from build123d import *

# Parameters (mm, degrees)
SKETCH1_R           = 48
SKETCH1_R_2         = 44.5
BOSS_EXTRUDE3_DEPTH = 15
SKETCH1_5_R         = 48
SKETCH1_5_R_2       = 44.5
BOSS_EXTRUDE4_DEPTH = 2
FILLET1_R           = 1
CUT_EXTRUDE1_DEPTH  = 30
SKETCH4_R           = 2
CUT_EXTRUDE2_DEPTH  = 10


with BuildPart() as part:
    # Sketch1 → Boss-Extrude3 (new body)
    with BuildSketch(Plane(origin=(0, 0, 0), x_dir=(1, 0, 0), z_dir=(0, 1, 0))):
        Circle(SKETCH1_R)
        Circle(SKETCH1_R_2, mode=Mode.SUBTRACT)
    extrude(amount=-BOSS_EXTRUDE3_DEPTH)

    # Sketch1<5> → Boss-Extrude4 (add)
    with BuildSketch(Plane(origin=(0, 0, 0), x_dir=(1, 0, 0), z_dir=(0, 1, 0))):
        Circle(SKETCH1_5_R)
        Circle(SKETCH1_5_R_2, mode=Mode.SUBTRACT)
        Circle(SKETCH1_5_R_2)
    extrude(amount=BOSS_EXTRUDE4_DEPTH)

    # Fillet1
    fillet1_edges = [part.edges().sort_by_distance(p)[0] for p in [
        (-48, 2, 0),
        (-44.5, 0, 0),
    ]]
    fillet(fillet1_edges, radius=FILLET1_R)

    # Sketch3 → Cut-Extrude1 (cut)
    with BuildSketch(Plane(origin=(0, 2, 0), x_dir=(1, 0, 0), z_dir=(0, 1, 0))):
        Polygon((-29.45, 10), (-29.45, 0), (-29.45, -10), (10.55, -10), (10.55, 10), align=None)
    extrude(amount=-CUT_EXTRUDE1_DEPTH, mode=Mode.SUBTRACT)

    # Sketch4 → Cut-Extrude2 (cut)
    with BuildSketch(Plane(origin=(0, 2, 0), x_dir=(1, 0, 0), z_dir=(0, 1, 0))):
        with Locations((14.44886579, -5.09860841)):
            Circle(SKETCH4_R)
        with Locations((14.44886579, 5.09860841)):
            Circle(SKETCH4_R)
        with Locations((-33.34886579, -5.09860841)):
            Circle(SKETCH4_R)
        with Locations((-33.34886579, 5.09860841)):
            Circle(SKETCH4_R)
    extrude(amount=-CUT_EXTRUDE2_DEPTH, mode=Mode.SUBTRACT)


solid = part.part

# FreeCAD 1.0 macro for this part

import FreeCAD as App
import Part
import Sketcher

V = App.Vector


def edges_at(feature, points):
    """Names of the edges that pass closest to the given points."""
    edges = feature.Shape.Edges
    near = lambda p: min(range(len(edges)), key=lambda i: edges[i].distToShape(Part.Vertex(*p))[0])
    return sorted({f"Edge{near(p) + 1}" for p in points})

doc = App.newDocument("Part")
params = doc.addObject("Spreadsheet::Sheet", "Params")
for row, (alias, value) in enumerate([
    ("sketch1_diameter", "96 mm"),
    ("sketch1_diameter2", "89 mm"),
    ("pad1_length", "15 mm"),
    ("sketch2_diameter", "96 mm"),
    ("pad2_length", "2 mm"),
    ("fillet_radius", "1 mm"),
    ("sketch3_width", "40 mm"),
    ("sketch3_height", "20 mm"),
    ("pocket1_length", "30 mm"),
    ("sketch4_diameter", "4 mm"),
    ("pocket2_length", "10 mm"),
], start=1):
    params.set(f"A{row}", alias)
    params.set(f"B{row}", "=" + value)
    params.setAlias(f"B{row}", alias)

body = doc.addObject("PartDesign::Body", "Body")

# Sketch on XZ plane
sketch1 = body.newObject("Sketcher::SketchObject", "Sketch")
sketch1.AttachmentSupport = (doc.getObject("XZ_Plane"), [""])
sketch1.MapMode = "FlatFace"
sketch1.addGeometry([
    Part.Circle(V(0, 0, 0), V(0, 0, 1), 48),
    Part.Circle(V(0, 0, 0), V(0, 0, 1), 44.5),
], False)
sketch1.addConstraint([
    Sketcher.Constraint("Coincident", 0, 3, -1, 1),
    Sketcher.Constraint("Coincident", 1, 3, -1, 1),
    Sketcher.Constraint("Diameter", 0, 96.0),
    Sketcher.Constraint("Diameter", 1, 89.0),
])
sketch1.setExpression("Constraints[2]", "Params.sketch1_diameter")
sketch1.setExpression("Constraints[3]", "Params.sketch1_diameter2")
pad1 = body.newObject("PartDesign::Pad", "Pad")
pad1.Profile = sketch1
pad1.setExpression("Length", "Params.pad1_length")

# Sketch on XZ plane
sketch2 = body.newObject("Sketcher::SketchObject", "Sketch001")
sketch2.AttachmentSupport = (doc.getObject("XZ_Plane"), [""])
sketch2.MapMode = "FlatFace"
sketch2.addGeometry(Part.Circle(V(0, 0, 0), V(0, 0, 1), 48), False)
sketch2.addConstraint([
    Sketcher.Constraint("Coincident", 0, 3, -1, 1),
    Sketcher.Constraint("Diameter", 0, 96.0),
])
sketch2.setExpression("Constraints[1]", "Params.sketch2_diameter")
pad2 = body.newObject("PartDesign::Pad", "Pad001")
pad2.Profile = sketch2
pad2.setExpression("Length", "Params.pad2_length")
pad2.Reversed = True
doc.recompute()

fillet = body.newObject("PartDesign::Fillet", "Fillet")
fillet.Base = (pad2, edges_at(pad2, [(-48, 2, 0), (-44.5, 0, 0)]))
fillet.setExpression("Radius", "Params.fillet_radius")

# Sketch on XZ plane
sketch3 = body.newObject("Sketcher::SketchObject", "Sketch002")
sketch3.AttachmentSupport = (doc.getObject("XZ_Plane"), [""])
sketch3.MapMode = "FlatFace"
sketch3.AttachmentOffset = App.Placement(V(0, 0, -2), App.Rotation())
sketch3.addGeometry([
    Part.LineSegment(V(-29.45, -10, 0), V(-29.45, 10, 0)),
    Part.LineSegment(V(-29.45, 10, 0), V(10.55, 10, 0)),
    Part.LineSegment(V(10.55, 10, 0), V(10.55, -10, 0)),
    Part.LineSegment(V(10.55, -10, 0), V(-29.45, -10, 0)),
], False)
sketch3.addConstraint([
    Sketcher.Constraint("Coincident", 0, 2, 1, 1),
    Sketcher.Constraint("Coincident", 1, 2, 2, 1),
    Sketcher.Constraint("Coincident", 2, 2, 3, 1),
    Sketcher.Constraint("Coincident", 3, 2, 0, 1),
    Sketcher.Constraint("Vertical", 0),
    Sketcher.Constraint("Horizontal", 1),
    Sketcher.Constraint("Vertical", 2),
    Sketcher.Constraint("Horizontal", 3),
    Sketcher.Constraint("DistanceX", 1, 1, 1, 2, 40.0),
    Sketcher.Constraint("DistanceY", 0, 1, 0, 2, 20.0),
    Sketcher.Constraint("DistanceY", -1, 1, 0, 2, 10.0),
    Sketcher.Constraint("DistanceX", 0, 2, -1, 1, 29.45),
])
sketch3.setExpression("Constraints[8]", "Params.sketch3_width")
sketch3.setExpression("Constraints[9]", "Params.sketch3_height")
pocket1 = body.newObject("PartDesign::Pocket", "Pocket")
pocket1.Profile = sketch3
pocket1.setExpression("Length", "Params.pocket1_length")
pocket1.Reversed = True

# Sketch on XZ plane
sketch4 = body.newObject("Sketcher::SketchObject", "Sketch003")
sketch4.AttachmentSupport = (doc.getObject("XZ_Plane"), [""])
sketch4.MapMode = "FlatFace"
sketch4.AttachmentOffset = App.Placement(V(0, 0, -2), App.Rotation())
sketch4.addGeometry([
    Part.Circle(V(14.448866, 5.098608, 0), V(0, 0, 1), 2),
    Part.Circle(V(14.448866, -5.098608, 0), V(0, 0, 1), 2),
    Part.Circle(V(-33.348866, 5.098608, 0), V(0, 0, 1), 2),
    Part.Circle(V(-33.348866, -5.098608, 0), V(0, 0, 1), 2),
], False)
sketch4.addConstraint([
    Sketcher.Constraint("Equal", 0, 1),
    Sketcher.Constraint("Equal", 1, 2),
    Sketcher.Constraint("Equal", 2, 3),
    Sketcher.Constraint("Symmetric", 0, 3, 1, 3, -1),
    Sketcher.Constraint("Symmetric", 2, 3, 3, 3, -1),
    Sketcher.Constraint("Horizontal", 0, 3, 2, 3),
    Sketcher.Constraint("Diameter", 0, 4.0),
    Sketcher.Constraint("DistanceY", -1, 1, 0, 3, 5.098608),
    Sketcher.Constraint("DistanceX", 2, 3, 0, 3, 47.797732),
    Sketcher.Constraint("DistanceX", -1, 1, 0, 3, 14.448866),
])
sketch4.setExpression("Constraints[6]", "Params.sketch4_diameter")
pocket2 = body.newObject("PartDesign::Pocket", "Pocket001")
pocket2.Profile = sketch4
pocket2.setExpression("Length", "Params.pocket2_length")
pocket2.Reversed = True

doc.recompute()
